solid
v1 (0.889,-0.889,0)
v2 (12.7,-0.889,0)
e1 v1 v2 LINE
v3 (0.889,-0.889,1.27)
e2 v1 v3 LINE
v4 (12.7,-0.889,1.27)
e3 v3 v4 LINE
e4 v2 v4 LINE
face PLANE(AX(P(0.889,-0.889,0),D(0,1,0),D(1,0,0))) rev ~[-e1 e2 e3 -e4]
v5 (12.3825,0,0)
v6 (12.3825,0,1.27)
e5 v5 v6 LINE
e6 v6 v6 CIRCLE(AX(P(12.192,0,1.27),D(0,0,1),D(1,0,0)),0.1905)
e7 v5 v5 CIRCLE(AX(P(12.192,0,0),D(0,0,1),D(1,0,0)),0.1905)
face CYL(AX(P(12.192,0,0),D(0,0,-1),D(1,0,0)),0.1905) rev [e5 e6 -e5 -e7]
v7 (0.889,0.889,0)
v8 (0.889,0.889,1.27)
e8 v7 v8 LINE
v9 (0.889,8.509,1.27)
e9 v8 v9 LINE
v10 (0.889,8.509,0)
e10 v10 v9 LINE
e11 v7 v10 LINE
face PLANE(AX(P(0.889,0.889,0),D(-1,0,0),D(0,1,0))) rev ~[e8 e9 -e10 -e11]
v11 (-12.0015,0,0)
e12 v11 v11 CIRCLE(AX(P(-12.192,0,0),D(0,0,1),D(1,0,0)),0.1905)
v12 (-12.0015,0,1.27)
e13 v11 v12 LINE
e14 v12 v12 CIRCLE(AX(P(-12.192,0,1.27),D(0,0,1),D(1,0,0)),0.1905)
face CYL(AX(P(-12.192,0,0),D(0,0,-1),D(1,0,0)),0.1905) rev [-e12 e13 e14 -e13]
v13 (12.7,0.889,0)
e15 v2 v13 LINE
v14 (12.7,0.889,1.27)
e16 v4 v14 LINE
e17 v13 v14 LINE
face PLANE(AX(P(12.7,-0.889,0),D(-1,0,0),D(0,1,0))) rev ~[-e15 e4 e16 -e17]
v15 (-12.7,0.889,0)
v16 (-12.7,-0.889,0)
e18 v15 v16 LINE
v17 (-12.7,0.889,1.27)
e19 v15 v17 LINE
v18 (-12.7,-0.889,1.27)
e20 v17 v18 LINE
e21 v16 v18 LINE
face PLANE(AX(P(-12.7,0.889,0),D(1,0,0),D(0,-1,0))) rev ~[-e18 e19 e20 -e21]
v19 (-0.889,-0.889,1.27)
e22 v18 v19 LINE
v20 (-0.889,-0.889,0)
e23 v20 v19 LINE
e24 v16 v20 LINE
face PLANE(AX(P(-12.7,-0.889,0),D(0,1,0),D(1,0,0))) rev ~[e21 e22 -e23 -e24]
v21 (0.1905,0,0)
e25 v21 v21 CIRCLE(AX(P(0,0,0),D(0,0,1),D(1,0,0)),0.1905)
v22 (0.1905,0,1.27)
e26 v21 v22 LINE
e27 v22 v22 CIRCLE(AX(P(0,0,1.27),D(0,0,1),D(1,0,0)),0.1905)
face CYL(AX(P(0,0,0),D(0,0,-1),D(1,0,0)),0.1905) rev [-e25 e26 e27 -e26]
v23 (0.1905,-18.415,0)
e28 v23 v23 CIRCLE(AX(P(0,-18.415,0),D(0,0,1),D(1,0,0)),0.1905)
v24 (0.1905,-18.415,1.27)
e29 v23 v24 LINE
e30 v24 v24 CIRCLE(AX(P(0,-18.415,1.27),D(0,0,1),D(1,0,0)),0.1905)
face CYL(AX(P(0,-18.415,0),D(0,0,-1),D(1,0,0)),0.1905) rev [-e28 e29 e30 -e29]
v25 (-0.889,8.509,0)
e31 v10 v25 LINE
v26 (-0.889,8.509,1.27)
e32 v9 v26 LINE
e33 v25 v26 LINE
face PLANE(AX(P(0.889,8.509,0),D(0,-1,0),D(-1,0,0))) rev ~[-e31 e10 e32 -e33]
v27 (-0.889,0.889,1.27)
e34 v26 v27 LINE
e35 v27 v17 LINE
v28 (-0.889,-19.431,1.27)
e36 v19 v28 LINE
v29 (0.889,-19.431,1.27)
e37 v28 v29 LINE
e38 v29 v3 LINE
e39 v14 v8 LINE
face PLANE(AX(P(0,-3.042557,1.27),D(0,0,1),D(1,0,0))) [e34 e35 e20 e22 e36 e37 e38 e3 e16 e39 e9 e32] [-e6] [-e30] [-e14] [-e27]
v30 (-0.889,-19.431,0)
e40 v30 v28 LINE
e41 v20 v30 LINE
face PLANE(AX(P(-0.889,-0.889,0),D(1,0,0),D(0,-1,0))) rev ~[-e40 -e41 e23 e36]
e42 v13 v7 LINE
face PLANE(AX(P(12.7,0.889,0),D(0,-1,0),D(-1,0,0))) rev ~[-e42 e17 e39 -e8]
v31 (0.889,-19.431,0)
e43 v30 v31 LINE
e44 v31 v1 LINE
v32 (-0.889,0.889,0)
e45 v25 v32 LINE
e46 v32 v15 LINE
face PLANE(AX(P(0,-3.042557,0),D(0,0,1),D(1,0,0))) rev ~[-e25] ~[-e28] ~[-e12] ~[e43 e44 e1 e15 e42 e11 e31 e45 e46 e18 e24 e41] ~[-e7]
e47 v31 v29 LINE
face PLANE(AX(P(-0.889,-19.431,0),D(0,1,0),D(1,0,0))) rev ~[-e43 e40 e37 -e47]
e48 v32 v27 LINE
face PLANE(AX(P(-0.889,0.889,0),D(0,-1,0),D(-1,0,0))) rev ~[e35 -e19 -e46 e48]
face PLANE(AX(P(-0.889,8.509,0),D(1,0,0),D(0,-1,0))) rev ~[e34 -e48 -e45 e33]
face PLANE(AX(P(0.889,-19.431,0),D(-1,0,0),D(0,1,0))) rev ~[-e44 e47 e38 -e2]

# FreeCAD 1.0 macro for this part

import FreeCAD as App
import Part
import Sketcher
Q = App.Units.Quantity


def add_polygon(sketch, points):
    """Adds a closed chain of lines whose ends are joined by coincident constraints."""
    first, n = sketch.GeometryCount, len(points)
    for a, b in zip(points, points[1:] + points[:1]):
        sketch.addGeometry(Part.LineSegment(App.Vector(*a, 0), App.Vector(*b, 0)), False)
    for i in range(n):
        sketch.addConstraint(Sketcher.Constraint("Coincident", first + i, 2, first + (i + 1) % n, 1))

doc = App.newDocument("Part")
params = doc.addObject("Spreadsheet::Sheet", "Params")
for row, (alias, value) in enumerate([
    ("sketch1_diameter", "0.015 in"),
    ("sketch1_height", "0.3 in"),
    ("sketch1_width", "0.07 in"),
    ("sketch1_height2", "0.73 in"),
    ("pad1_length", "0.05 in"),
], start=1):
    params.set(f"A{row}", alias)
    params.set(f"B{row}", "=" + value)
    params.setAlias(f"B{row}", alias)

body = doc.addObject("PartDesign::Body", "Body")

# Sketch on XY plane
sketch1 = body.newObject("Sketcher::SketchObject", "Sketch")
sketch1.AttachmentSupport = (doc.getObject("XY_Plane"), [""])
sketch1.MapMode = "FlatFace"
add_polygon(sketch1, [(-0.89, 0.89), (-12.7, 0.89), (-12.7, -0.89), (-0.89, -0.89), (-0.89, -19.43), (0.89, -19.43), (0.89, -0.89), (12.7, -0.89), (12.7, 0.89), (0.89, 0.89), (0.89, 8.51), (-0.89, 8.51)])  # lines 0-11
sketch1.addGeometry(Part.Circle(App.Vector(0, -18.41, 0), App.Vector(0, 0, 1), 0.19), False)  # 12
sketch1.addGeometry(Part.Circle(App.Vector(-12.19, 0, 0), App.Vector(0, 0, 1), 0.19), False)  # 13
sketch1.addGeometry(Part.Circle(App.Vector(0, 0, 0), App.Vector(0, 0, 1), 0.19), False)  # 14
sketch1.addGeometry(Part.Circle(App.Vector(12.19, 0, 0), App.Vector(0, 0, 1), 0.19), False)  # 15
sketch1.addConstraint([
    Sketcher.Constraint("Horizontal", 0),
    Sketcher.Constraint("Vertical", 1),
    Sketcher.Constraint("Horizontal", 2),
    Sketcher.Constraint("Vertical", 3),
    Sketcher.Constraint("Horizontal", 4),
    Sketcher.Constraint("Vertical", 5),
    Sketcher.Constraint("Horizontal", 6),
    Sketcher.Constraint("Vertical", 7),
    Sketcher.Constraint("Horizontal", 8),
    Sketcher.Constraint("Vertical", 9),
    Sketcher.Constraint("Horizontal", 10),
    Sketcher.Constraint("Vertical", 11),
    Sketcher.Constraint("Coincident", 14, 3, -1, 1),
    Sketcher.Constraint("Equal", 12, 13),
    Sketcher.Constraint("Equal", 13, 14),
    Sketcher.Constraint("Equal", 14, 15),
    Sketcher.Constraint("Symmetric", 13, 3, 15, 3, -1, 1),
    Sketcher.Constraint("Symmetric", 0, 2, 6, 2, -1, 1),
    Sketcher.Constraint("Symmetric", 2, 2, 8, 2, -1, 1),
    Sketcher.Constraint("Symmetric", 2, 2, 5, 2, -2),
    Sketcher.Constraint("PointOnObject", 12, 3, -2),
    Sketcher.Constraint("PointOnObject", 13, 3, -1),
    Sketcher.Constraint("Vertical", 3, 2, 10, 2),
    Sketcher.Constraint("Equal", 10, 1),
    Sketcher.Constraint("Diameter", 12, Q("0.015 in")),
    Sketcher.Constraint("DistanceY", 9, 1, 9, 2, Q("0.3 in")),
    Sketcher.Constraint("DistanceX", 4, 1, 4, 2, Q("0.07 in")),
    Sketcher.Constraint("DistanceY", 3, 2, 3, 1, Q("0.73 in")),
    Sketcher.Constraint("DistanceX", 0, 2, -1, 1, Q("0.5 in")),
    Sketcher.Constraint("DistanceX", 13, 3, -1, 1, Q("0.48 in")),
    Sketcher.Constraint("DistanceY", 12, 3, 0, 2, Q("0.76 in")),
])
sketch1.setExpression("Constraints[36]", "Params.sketch1_diameter")
sketch1.setExpression("Constraints[37]", "Params.sketch1_height")
sketch1.setExpression("Constraints[38]", "Params.sketch1_width")
sketch1.setExpression("Constraints[39]", "Params.sketch1_height2")
pad1 = body.newObject("PartDesign::Pad", "Pad")
pad1.Profile = sketch1
pad1.setExpression("Length", "Params.pad1_length")

doc.recompute()
